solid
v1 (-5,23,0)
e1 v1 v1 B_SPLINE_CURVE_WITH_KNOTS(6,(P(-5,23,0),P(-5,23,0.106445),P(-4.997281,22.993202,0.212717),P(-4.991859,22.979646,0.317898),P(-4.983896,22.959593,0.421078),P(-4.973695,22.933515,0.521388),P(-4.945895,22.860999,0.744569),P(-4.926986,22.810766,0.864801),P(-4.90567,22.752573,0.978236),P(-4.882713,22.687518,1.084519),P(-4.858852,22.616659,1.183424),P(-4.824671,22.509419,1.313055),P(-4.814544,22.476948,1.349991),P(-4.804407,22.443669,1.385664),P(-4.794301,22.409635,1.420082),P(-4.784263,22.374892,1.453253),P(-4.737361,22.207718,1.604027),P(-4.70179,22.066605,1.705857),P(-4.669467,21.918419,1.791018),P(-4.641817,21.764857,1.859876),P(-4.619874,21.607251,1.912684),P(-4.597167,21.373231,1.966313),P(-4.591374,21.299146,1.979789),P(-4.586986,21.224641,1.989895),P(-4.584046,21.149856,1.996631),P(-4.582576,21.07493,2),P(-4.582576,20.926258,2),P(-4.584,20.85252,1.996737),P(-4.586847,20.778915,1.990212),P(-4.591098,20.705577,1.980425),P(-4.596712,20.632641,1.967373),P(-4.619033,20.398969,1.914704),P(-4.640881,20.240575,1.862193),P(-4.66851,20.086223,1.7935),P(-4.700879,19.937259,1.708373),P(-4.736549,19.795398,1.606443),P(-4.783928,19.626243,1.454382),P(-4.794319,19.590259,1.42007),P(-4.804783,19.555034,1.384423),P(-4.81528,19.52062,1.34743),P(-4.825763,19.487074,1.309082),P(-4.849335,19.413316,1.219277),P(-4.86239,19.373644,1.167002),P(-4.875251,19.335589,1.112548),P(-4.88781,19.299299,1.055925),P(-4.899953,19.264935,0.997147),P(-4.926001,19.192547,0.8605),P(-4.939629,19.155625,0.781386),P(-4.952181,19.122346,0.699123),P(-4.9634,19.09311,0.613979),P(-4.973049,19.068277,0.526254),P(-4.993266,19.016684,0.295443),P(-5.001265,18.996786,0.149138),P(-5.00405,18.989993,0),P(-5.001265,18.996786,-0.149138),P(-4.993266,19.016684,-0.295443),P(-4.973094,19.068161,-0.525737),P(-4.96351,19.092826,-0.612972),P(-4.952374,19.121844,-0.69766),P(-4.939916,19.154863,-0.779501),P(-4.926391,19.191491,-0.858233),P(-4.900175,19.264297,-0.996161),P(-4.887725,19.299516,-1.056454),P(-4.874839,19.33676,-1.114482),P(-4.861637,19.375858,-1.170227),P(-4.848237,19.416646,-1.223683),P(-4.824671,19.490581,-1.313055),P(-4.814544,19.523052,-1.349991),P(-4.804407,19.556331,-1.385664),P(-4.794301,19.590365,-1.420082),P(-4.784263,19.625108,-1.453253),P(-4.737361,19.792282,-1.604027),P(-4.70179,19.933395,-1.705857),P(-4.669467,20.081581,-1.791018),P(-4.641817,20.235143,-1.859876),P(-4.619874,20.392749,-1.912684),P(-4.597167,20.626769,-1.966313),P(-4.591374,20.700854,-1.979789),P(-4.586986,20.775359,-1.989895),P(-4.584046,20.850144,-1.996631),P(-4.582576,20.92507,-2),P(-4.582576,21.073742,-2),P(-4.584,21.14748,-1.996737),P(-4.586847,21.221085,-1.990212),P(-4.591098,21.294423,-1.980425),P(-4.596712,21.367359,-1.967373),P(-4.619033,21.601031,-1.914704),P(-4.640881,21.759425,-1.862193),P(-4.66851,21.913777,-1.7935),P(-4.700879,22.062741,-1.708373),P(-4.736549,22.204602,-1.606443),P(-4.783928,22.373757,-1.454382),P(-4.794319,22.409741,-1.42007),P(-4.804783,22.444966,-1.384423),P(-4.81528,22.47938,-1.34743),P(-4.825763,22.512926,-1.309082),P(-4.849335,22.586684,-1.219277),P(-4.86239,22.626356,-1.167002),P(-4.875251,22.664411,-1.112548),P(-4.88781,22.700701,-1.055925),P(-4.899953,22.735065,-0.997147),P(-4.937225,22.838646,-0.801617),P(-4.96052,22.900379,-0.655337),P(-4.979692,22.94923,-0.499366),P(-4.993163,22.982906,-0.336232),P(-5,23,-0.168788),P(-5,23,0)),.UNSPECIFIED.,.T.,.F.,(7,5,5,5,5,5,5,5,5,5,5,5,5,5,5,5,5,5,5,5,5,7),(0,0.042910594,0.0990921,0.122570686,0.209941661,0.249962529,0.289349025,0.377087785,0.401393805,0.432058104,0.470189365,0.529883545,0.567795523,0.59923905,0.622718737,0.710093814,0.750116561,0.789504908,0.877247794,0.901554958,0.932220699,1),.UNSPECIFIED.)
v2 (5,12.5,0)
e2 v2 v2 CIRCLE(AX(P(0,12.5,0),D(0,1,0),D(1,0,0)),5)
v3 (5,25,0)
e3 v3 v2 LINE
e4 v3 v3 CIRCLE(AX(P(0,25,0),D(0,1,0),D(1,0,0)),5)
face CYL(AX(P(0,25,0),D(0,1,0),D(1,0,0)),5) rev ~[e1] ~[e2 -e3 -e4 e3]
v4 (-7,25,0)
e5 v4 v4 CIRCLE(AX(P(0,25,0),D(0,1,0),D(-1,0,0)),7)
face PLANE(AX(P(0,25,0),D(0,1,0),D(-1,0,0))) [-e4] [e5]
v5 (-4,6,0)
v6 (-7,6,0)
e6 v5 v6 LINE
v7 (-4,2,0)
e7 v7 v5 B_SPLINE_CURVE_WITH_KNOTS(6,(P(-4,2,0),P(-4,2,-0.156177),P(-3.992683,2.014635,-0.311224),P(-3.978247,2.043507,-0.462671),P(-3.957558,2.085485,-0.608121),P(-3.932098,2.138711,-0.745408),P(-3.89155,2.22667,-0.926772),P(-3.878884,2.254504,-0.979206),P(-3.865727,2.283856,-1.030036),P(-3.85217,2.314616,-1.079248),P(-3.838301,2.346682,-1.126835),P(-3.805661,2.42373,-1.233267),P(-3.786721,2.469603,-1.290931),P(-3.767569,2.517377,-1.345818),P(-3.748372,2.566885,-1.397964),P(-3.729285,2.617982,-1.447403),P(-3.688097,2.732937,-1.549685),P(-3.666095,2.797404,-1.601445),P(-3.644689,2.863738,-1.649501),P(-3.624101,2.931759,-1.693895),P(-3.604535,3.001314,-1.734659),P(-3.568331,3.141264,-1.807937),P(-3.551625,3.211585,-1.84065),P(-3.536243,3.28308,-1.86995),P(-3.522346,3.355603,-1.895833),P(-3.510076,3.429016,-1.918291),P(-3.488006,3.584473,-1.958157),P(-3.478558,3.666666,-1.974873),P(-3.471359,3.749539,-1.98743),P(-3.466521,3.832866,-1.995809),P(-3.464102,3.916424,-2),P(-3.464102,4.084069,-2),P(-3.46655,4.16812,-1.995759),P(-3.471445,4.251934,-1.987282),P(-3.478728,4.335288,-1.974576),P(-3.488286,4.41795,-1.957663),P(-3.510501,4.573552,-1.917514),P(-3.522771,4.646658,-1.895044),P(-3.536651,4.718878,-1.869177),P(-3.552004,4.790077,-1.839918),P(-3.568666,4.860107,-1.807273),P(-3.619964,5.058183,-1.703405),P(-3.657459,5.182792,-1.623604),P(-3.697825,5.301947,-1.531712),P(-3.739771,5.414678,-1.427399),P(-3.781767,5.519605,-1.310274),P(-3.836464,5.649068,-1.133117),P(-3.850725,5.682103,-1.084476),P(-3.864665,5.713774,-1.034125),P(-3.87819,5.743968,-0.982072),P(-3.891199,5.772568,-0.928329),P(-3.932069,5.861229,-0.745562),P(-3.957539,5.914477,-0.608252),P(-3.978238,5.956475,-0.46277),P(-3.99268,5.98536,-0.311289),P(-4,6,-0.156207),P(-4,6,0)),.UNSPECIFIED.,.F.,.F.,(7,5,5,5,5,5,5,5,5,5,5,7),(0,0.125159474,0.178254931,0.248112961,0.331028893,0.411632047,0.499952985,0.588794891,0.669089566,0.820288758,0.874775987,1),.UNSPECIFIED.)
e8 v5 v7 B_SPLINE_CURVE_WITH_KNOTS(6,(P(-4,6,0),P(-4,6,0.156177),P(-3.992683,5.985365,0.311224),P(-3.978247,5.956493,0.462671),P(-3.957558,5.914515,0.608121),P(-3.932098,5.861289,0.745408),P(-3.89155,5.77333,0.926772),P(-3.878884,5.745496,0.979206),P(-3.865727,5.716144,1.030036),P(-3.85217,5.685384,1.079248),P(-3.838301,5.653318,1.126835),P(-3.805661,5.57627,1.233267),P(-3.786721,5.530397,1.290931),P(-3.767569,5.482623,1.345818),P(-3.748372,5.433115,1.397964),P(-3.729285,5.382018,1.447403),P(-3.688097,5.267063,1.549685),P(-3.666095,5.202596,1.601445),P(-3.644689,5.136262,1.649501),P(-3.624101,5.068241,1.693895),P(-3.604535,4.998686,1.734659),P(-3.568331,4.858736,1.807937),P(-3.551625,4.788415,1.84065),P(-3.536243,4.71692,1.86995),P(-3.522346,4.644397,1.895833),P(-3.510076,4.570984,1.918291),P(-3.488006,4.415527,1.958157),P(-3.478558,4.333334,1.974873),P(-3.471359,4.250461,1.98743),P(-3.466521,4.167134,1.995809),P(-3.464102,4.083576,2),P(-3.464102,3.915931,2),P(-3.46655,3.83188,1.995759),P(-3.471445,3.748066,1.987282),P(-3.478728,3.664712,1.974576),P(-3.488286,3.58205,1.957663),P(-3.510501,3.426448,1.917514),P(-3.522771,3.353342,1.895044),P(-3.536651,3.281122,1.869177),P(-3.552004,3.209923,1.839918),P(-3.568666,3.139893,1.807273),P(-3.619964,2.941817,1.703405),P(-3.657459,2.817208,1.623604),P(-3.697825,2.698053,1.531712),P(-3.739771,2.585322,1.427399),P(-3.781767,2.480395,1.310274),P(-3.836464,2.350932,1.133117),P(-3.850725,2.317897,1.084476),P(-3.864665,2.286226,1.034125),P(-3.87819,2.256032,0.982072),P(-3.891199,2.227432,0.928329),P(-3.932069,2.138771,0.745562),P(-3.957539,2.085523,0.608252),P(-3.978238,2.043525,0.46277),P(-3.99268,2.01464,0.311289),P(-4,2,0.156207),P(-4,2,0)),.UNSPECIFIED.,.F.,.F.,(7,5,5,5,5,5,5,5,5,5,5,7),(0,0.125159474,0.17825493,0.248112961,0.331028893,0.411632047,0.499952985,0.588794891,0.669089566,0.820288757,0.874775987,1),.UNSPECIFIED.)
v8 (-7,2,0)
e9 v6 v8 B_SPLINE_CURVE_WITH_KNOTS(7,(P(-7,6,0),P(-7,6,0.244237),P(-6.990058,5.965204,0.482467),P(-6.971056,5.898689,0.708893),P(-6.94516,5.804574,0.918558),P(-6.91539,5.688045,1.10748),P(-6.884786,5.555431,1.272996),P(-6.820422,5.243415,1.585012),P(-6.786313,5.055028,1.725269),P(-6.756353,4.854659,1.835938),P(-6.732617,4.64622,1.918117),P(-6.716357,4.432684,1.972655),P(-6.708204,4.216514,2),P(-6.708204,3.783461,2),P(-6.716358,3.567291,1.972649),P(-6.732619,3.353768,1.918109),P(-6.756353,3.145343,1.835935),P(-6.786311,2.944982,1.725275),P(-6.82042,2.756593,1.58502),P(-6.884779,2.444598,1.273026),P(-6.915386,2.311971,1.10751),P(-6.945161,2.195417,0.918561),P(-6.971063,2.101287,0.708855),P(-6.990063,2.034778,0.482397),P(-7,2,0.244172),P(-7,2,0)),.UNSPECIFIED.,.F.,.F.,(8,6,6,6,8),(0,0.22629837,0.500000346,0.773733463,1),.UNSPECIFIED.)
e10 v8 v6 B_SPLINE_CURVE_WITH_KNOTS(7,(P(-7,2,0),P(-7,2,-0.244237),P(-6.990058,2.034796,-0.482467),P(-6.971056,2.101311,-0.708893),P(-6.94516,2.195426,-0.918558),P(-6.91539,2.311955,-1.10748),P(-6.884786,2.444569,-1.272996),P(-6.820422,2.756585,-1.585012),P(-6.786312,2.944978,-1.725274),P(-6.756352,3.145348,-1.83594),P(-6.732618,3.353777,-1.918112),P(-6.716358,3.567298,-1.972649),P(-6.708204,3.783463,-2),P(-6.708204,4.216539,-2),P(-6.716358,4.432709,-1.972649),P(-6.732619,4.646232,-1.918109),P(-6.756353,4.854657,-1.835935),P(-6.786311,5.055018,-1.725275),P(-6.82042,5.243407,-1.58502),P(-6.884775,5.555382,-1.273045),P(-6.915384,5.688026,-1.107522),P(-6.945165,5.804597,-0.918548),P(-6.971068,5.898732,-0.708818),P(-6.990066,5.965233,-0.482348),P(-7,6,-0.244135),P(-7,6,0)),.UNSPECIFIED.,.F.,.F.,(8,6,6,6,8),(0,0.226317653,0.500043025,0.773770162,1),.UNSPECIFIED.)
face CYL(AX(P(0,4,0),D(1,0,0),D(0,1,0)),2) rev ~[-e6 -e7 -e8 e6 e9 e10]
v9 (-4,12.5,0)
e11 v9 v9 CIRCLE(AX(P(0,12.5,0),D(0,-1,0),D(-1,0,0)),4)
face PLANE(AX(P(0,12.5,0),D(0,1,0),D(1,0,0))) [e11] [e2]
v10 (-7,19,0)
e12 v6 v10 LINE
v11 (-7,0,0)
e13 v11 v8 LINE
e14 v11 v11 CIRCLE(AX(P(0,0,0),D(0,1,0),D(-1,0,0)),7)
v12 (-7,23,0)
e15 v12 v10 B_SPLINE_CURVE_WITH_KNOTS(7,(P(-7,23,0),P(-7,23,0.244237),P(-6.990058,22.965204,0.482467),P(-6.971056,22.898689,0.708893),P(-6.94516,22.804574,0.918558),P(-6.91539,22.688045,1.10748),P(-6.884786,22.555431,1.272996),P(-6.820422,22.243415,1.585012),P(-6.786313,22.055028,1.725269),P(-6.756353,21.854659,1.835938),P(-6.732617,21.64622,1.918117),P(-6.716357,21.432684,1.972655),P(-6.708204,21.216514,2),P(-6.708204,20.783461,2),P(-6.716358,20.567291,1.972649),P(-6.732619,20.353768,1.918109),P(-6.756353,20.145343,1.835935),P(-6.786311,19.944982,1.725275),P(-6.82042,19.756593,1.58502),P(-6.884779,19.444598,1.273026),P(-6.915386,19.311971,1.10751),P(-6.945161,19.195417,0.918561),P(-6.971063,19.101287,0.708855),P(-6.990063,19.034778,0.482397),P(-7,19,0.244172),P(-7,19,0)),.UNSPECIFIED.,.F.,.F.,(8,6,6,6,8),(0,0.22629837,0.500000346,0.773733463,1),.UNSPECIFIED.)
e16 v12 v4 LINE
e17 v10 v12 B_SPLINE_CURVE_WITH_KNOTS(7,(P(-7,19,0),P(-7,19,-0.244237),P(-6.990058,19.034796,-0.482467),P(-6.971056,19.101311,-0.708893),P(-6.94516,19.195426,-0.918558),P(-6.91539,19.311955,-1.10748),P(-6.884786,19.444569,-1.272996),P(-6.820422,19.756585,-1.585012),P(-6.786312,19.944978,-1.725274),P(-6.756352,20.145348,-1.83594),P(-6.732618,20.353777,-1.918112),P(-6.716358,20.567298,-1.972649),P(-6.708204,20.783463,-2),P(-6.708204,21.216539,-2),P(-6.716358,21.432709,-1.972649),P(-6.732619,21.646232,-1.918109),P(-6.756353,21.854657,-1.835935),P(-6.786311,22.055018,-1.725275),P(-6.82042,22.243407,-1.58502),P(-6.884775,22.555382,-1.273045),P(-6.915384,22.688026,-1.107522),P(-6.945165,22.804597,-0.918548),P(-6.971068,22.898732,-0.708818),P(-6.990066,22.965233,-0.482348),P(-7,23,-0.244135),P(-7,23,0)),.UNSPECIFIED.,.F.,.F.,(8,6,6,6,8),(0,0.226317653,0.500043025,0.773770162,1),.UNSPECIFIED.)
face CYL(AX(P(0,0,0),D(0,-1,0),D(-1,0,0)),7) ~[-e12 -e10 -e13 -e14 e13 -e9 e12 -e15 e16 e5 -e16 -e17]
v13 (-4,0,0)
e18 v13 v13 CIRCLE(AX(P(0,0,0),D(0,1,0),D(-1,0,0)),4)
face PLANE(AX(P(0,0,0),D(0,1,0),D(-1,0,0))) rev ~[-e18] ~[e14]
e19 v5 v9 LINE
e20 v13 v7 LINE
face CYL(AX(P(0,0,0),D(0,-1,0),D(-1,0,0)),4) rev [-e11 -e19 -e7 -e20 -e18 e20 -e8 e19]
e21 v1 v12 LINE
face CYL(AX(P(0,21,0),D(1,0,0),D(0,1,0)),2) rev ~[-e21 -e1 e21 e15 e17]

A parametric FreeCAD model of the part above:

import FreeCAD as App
import Part
import Sketcher
from FreeCAD import Vector
Q = App.Units.Quantity

doc = App.newDocument("Part")
body = doc.addObject("PartDesign::Body", "Body")

# Sketch on XZ plane
sketch1 = doc.addObject("Sketcher::SketchObject", "Sketch")
body.addObject(sketch1)
sketch1.AttachmentSupport = (doc.XZ_Plane, [""])
sketch1.MapMode = "FlatFace"
sketch1.addGeometry(Part.Circle(Vector(0, 0, 0), Vector(0, 0, 1), 7), False)
sketch1.addGeometry(Part.Circle(Vector(0, 0, 0), Vector(0, 0, 1), 4), False)
sketch1.addConstraint(Sketcher.Constraint("Coincident", 0, 3, -1, 1))
sketch1.addConstraint(Sketcher.Constraint("Coincident", 1, 3, -1, 1))
sketch1.addConstraint(Sketcher.Constraint("Diameter", 0, Q("14 mm")))
sketch1.addConstraint(Sketcher.Constraint("Diameter", 1, Q("8 mm")))
pad1 = doc.addObject("PartDesign::Pad", "Pad")
body.addObject(pad1)
pad1.Profile = sketch1
pad1.Length = 25
pad1.Reversed = True

# Sketch on XZ plane
sketch2 = doc.addObject("Sketcher::SketchObject", "Sketch001")
body.addObject(sketch2)
sketch2.AttachmentSupport = (doc.XZ_Plane, [""])
sketch2.MapMode = "FlatFace"
sketch2.AttachmentOffset = App.Placement(Vector(0, 0, -25), App.Rotation())
sketch2.addGeometry(Part.Circle(Vector(0, 0, 0), Vector(0, 0, 1), 5), False)
sketch2.addConstraint(Sketcher.Constraint("Coincident", 0, 3, -1, 1))
sketch2.addConstraint(Sketcher.Constraint("Diameter", 0, Q("10 mm")))
pocket1 = doc.addObject("PartDesign::Pocket", "Pocket")
body.addObject(pocket1)
pocket1.Profile = sketch2
pocket1.Length = 12.5
pocket1.Reversed = True

# Sketch on YZ plane
sketch3 = doc.addObject("Sketcher::SketchObject", "Sketch002")
body.addObject(sketch3)
sketch3.AttachmentSupport = (doc.YZ_Plane, [""])
sketch3.MapMode = "FlatFace"
sketch3.addGeometry(Part.Circle(Vector(4, 0, 0), Vector(0, 0, 1), 2), False)
sketch3.addGeometry(Part.Circle(Vector(21, 0, 0), Vector(0, 0, 1), 2), False)
sketch3.addConstraint(Sketcher.Constraint("Equal", 0, 1))
sketch3.addConstraint(Sketcher.Constraint("PointOnObject", 0, 3, -1))
sketch3.addConstraint(Sketcher.Constraint("PointOnObject", 1, 3, -1))
sketch3.addConstraint(Sketcher.Constraint("Diameter", 0, Q("4 mm")))
sketch3.addConstraint(Sketcher.Constraint("DistanceX", -1, 1, 0, 3, Q("4 mm")))
sketch3.addConstraint(Sketcher.Constraint("DistanceX", -1, 1, 1, 3, Q("21 mm")))
pocket2 = doc.addObject("PartDesign::Pocket", "Pocket001")
body.addObject(pocket2)
pocket2.Profile = sketch3
pocket2.Length = 25

doc.recompute()
